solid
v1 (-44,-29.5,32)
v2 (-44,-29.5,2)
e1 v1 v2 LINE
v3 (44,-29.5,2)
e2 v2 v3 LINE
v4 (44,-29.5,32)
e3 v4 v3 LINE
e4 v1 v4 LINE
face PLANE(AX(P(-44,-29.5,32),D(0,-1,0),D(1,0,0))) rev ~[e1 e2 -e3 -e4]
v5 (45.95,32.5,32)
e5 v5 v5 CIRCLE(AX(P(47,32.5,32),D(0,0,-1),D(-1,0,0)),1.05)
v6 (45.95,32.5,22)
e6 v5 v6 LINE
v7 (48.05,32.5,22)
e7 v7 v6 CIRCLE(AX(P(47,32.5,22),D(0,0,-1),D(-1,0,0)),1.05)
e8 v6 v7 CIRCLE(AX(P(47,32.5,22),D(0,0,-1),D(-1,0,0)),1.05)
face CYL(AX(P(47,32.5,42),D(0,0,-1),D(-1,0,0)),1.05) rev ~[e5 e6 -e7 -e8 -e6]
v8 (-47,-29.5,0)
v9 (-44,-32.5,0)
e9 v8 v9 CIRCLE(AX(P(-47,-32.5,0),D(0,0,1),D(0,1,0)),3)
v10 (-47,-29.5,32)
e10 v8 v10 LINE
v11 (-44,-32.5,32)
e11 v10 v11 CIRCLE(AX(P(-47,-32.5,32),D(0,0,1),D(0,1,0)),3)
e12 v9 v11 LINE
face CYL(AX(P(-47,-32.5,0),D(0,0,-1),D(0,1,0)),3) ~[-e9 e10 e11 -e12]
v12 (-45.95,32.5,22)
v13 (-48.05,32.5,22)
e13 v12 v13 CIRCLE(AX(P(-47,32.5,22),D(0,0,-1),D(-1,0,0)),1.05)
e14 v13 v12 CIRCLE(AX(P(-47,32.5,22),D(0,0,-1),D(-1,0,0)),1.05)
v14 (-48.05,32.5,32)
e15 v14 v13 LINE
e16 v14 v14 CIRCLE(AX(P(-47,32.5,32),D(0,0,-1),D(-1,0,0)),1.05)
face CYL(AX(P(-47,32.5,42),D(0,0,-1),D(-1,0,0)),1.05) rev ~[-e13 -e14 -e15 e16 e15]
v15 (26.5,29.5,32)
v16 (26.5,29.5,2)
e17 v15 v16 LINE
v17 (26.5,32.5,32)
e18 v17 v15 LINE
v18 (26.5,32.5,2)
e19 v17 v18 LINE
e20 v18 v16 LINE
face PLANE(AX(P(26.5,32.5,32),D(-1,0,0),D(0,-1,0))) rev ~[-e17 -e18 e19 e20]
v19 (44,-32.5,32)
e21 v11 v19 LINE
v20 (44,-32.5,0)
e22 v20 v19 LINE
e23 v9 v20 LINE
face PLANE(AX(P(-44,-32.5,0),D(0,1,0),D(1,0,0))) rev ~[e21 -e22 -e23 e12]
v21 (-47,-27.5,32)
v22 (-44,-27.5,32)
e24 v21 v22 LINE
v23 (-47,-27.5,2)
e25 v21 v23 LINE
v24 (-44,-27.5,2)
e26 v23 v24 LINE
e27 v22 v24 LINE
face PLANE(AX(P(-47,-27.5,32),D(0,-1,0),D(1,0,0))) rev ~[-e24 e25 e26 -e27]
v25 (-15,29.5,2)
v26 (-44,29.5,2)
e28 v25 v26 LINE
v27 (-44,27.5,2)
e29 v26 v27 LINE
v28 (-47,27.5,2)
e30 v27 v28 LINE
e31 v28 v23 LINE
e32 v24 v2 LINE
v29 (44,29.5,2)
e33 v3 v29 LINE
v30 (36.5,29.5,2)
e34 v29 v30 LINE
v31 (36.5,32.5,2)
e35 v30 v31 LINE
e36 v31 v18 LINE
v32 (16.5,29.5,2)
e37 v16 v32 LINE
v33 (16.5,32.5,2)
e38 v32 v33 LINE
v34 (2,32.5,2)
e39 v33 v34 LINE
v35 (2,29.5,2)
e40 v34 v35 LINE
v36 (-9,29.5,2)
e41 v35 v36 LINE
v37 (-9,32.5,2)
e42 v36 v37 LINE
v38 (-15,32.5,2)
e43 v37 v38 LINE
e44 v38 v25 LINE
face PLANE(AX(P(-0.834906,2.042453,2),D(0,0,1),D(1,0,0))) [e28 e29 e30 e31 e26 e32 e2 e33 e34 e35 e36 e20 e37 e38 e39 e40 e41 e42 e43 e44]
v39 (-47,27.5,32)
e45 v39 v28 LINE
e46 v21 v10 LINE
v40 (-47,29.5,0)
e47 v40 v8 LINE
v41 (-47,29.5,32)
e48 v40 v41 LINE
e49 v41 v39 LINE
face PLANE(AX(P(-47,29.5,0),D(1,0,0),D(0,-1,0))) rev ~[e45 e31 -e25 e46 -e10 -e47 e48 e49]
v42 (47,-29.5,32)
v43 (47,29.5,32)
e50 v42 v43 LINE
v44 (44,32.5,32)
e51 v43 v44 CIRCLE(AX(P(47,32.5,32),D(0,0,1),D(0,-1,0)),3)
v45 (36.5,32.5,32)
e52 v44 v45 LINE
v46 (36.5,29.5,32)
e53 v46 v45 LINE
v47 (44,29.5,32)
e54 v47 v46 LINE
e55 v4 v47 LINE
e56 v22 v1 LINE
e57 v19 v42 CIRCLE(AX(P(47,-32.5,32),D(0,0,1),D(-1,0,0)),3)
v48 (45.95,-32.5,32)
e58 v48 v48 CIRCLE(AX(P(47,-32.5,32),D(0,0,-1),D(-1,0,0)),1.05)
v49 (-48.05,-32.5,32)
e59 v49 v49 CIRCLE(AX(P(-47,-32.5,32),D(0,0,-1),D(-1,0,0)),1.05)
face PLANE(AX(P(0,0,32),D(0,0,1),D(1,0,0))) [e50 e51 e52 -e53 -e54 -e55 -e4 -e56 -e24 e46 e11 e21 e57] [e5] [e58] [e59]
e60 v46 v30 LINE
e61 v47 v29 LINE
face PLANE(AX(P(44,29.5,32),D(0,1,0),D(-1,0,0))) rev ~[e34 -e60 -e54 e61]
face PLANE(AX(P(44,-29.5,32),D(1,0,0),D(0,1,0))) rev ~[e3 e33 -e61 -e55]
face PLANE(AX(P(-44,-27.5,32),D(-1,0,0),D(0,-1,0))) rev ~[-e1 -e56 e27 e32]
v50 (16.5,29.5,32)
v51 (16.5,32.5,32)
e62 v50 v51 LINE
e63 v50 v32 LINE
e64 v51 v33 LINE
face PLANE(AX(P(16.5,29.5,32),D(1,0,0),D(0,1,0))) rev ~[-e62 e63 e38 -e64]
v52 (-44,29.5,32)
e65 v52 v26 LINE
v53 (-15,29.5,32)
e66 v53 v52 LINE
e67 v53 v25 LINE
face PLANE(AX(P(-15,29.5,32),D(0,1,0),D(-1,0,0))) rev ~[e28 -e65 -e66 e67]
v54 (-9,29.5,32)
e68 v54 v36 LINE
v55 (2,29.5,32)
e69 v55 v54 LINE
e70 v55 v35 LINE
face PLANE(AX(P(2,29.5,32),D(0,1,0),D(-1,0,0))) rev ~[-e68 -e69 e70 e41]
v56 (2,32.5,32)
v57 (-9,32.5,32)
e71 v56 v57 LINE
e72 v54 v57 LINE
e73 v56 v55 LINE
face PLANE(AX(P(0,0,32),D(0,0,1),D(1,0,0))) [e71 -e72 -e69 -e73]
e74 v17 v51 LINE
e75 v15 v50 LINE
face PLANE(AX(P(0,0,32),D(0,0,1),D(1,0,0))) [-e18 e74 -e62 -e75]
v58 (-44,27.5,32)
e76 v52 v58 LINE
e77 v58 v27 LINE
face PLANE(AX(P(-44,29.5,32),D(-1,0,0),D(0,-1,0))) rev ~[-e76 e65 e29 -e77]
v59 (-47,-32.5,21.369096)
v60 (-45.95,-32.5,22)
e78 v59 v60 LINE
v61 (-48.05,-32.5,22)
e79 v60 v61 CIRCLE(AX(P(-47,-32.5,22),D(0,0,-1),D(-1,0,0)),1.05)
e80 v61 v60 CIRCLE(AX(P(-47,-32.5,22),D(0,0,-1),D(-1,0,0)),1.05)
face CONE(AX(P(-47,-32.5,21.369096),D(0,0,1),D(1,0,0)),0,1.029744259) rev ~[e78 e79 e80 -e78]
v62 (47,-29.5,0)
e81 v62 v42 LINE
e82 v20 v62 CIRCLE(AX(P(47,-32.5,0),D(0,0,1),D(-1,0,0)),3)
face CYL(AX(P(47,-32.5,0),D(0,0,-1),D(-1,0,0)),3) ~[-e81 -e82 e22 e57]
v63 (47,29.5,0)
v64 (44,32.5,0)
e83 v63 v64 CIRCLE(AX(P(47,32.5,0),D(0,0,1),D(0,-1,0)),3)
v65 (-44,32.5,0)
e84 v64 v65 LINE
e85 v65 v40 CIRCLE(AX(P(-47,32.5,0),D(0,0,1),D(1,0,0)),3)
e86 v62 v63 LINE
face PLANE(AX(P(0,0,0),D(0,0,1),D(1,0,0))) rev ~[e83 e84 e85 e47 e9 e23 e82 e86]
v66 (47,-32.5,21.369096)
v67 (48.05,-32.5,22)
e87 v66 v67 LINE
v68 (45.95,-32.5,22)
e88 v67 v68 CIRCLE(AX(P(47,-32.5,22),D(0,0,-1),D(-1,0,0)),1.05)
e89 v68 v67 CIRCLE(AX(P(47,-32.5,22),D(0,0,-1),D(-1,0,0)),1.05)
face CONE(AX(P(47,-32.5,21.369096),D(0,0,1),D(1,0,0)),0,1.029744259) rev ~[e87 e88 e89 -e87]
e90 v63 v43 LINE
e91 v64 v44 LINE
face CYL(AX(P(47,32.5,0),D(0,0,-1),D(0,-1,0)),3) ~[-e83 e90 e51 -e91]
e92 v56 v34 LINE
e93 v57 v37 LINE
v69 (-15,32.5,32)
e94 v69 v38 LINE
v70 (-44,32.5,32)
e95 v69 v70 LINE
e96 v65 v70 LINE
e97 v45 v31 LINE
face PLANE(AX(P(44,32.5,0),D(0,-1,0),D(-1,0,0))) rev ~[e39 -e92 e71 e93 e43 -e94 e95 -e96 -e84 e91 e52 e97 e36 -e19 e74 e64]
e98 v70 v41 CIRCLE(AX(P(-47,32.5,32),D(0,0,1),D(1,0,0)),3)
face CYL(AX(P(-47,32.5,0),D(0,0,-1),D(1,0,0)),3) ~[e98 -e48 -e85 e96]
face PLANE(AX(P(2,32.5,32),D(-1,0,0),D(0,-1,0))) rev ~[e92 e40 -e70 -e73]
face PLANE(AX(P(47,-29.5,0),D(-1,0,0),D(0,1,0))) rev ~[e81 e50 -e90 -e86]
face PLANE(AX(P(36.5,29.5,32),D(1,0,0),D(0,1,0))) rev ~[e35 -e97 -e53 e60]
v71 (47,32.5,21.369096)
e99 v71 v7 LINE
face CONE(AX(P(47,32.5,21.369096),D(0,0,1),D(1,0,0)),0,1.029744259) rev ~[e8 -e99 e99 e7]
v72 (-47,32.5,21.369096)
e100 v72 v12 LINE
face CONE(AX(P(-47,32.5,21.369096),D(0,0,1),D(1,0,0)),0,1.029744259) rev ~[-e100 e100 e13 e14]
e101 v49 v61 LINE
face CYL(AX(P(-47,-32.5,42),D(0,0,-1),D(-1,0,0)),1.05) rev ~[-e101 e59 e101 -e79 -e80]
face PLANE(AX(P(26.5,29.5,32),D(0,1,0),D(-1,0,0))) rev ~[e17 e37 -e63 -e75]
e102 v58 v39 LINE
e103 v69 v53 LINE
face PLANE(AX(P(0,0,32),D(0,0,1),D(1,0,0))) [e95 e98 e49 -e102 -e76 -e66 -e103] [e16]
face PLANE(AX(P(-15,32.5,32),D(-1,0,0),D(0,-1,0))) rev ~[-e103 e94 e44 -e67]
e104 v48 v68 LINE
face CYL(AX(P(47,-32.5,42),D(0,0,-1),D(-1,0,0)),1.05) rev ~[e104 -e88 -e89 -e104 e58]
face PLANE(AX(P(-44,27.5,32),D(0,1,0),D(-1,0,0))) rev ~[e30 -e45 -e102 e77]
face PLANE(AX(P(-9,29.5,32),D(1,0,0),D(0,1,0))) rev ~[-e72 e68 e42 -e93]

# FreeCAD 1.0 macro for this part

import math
import FreeCAD as App
import Part
import Sketcher

V = App.Vector
Q = App.Units.Quantity


def add_polygon(sketch, points):
    """Adds a closed chain of lines whose ends are joined by coincident constraints."""
    first, n = sketch.GeometryCount, len(points)
    for a, b in zip(points, points[1:] + points[:1]):
        sketch.addGeometry(Part.LineSegment(App.Vector(*a, 0), App.Vector(*b, 0)), False)
    for i in range(n):
        sketch.addConstraint(Sketcher.Constraint("Coincident", first + i, 2, first + (i + 1) % n, 1))

doc = App.newDocument("Part")
body = doc.addObject("PartDesign::Body", "Body")

# Sketch on XY plane
sketch1 = doc.addObject("Sketcher::SketchObject", "Sketch")
body.addObject(sketch1)
sketch1.AttachmentSupport = (doc.XY_Plane, [""])
sketch1.MapMode = "FlatFace"
sketch1.addGeometry([
    Part.LineSegment(V(-44, -32.5, 0), V(44, -32.5, 0)),  # 0
    Part.ArcOfCircle(Part.Circle(V(47, -32.5, 0), V(0, 0, 1), 3), math.radians(180), math.radians(450)),  # 1
    Part.LineSegment(V(47, -29.5, 0), V(47, 29.5, 0)),  # 2
    Part.ArcOfCircle(Part.Circle(V(47, 32.5, 0), V(0, 0, 1), 3), math.radians(-90), math.radians(180)),  # 3
    Part.LineSegment(V(44, 32.5, 0), V(-44, 32.5, 0)),  # 4
    Part.ArcOfCircle(Part.Circle(V(-47, 32.5, 0), V(0, 0, 1), 3), math.radians(0), math.radians(270)),  # 5
    Part.LineSegment(V(-47, 29.5, 0), V(-47, -29.5, 0)),  # 6
    Part.ArcOfCircle(Part.Circle(V(-47, -32.5, 0), V(0, 0, 1), 3), math.radians(90), math.radians(360)),  # 7
], False)
sketch1.addConstraint([
    Sketcher.Constraint("Coincident", 0, 2, 1, 1),
    Sketcher.Constraint("Coincident", 1, 2, 2, 1),
    Sketcher.Constraint("Coincident", 2, 2, 3, 1),
    Sketcher.Constraint("Coincident", 3, 2, 4, 1),
    Sketcher.Constraint("Coincident", 4, 2, 5, 1),
    Sketcher.Constraint("Coincident", 5, 2, 6, 1),
    Sketcher.Constraint("Coincident", 6, 2, 7, 1),
    Sketcher.Constraint("Coincident", 7, 2, 0, 1),
    Sketcher.Constraint("Horizontal", 0),
    Sketcher.Constraint("Vertical", 2),
    Sketcher.Constraint("Horizontal", 4),
    Sketcher.Constraint("Vertical", 6),
    Sketcher.Constraint("Equal", 1, 3),
    Sketcher.Constraint("Equal", 3, 5),
    Sketcher.Constraint("Equal", 5, 7),
    Sketcher.Constraint("Symmetric", 1, 3, 5, 3, -1, 1),
    Sketcher.Constraint("Symmetric", 3, 3, 7, 3, -1, 1),
    Sketcher.Constraint("Symmetric", 3, 3, 5, 3, -2),
    Sketcher.Constraint("Horizontal", 7, 3, 0, 2),
    Sketcher.Constraint("Horizontal", 5, 3, 3, 2),
    Sketcher.Constraint("Vertical", 3, 3, 1, 2),
    Sketcher.Constraint("Vertical", 7, 3, 5, 2),
    Sketcher.Constraint("Radius", 1, Q("3 mm")),
    Sketcher.Constraint("DistanceX", 0, 1, 0, 2, Q("88 mm")),
    Sketcher.Constraint("DistanceY", 2, 1, 2, 2, Q("59 mm")),
])
pad1 = doc.addObject("PartDesign::Pad", "Pad")
body.addObject(pad1)
pad1.Profile = sketch1
pad1.Length = 32

# Sketch on XY plane
sketch2 = doc.addObject("Sketcher::SketchObject", "Sketch001")
body.addObject(sketch2)
sketch2.AttachmentSupport = (doc.XY_Plane, [""])
sketch2.MapMode = "FlatFace"
sketch2.AttachmentOffset = App.Placement(V(0, 0, 32), App.Rotation())
add_polygon(sketch2, [(44, -29.5), (44, 29.5), (36.5, 29.5), (36.5, 32.5), (26.5, 32.5), (26.5, 29.5), (16.5, 29.5), (16.5, 32.5), (2, 32.5), (2, 29.5), (-9, 29.5), (-9, 32.5), (-15, 32.5), (-15, 29.5), (-44, 29.5), (-44, 27.5), (-47, 27.5), (-47, -27.5), (-44, -27.5), (-44, -29.5)])  # lines 0-19
sketch2.addConstraint([
    Sketcher.Constraint("Vertical", 0),
    Sketcher.Constraint("Horizontal", 1),
    Sketcher.Constraint("Vertical", 2),
    Sketcher.Constraint("Horizontal", 3),
    Sketcher.Constraint("Vertical", 4),
    Sketcher.Constraint("Horizontal", 5),
    Sketcher.Constraint("Vertical", 6),
    Sketcher.Constraint("Horizontal", 7),
    Sketcher.Constraint("Vertical", 8),
    Sketcher.Constraint("Horizontal", 9),
    Sketcher.Constraint("Vertical", 10),
    Sketcher.Constraint("Horizontal", 11),
    Sketcher.Constraint("Vertical", 12),
    Sketcher.Constraint("Horizontal", 13),
    Sketcher.Constraint("Vertical", 14),
    Sketcher.Constraint("Horizontal", 15),
    Sketcher.Constraint("Vertical", 16),
    Sketcher.Constraint("Horizontal", 17),
    Sketcher.Constraint("Vertical", 18),
    Sketcher.Constraint("Horizontal", 19),
    Sketcher.Constraint("Symmetric", 0, 2, 18, 2, -1, 1),
    Sketcher.Constraint("Symmetric", 13, 2, 19, 2, -1, 1),
    Sketcher.Constraint("Horizontal", 1, 2, 4, 2),
    Sketcher.Constraint("Horizontal", 3, 2, 6, 2),
    Sketcher.Constraint("Horizontal", 5, 2, 8, 2),
    Sketcher.Constraint("Horizontal", 7, 2, 10, 2),
    Sketcher.Constraint("Equal", 3, 5),
    Sketcher.Constraint("Equal", 17, 2),
    Sketcher.Constraint("Equal", 14, 18),
    Sketcher.Constraint("DistanceX", 3, 2, 3, 1, Q("10 mm")),
    Sketcher.Constraint("DistanceX", 9, 2, 9, 1, Q("11 mm")),
    Sketcher.Constraint("DistanceX", 11, 2, 11, 1, Q("6 mm")),
    Sketcher.Constraint("DistanceX", 13, 2, 13, 1, Q("29 mm")),
    Sketcher.Constraint("DistanceX", 15, 2, 15, 1, Q("3 mm")),
    Sketcher.Constraint("DistanceX", 19, 1, 19, 2, Q("88 mm")),
    Sketcher.Constraint("DistanceY", 0, 1, 0, 2, Q("59 mm")),
    Sketcher.Constraint("DistanceY", 14, 2, 14, 1, Q("2 mm")),
    Sketcher.Constraint("DistanceX", 1, 2, 1, 1, Q("7.5 mm")),
])
pocket1 = doc.addObject("PartDesign::Pocket", "Pocket")
body.addObject(pocket1)
pocket1.Profile = sketch2
pocket1.Length = 30

# Sketch on XY plane
sketch3 = doc.addObject("Sketcher::SketchObject", "Sketch002")
body.addObject(sketch3)
sketch3.AttachmentSupport = (doc.XY_Plane, [""])
sketch3.MapMode = "FlatFace"
sketch3.AttachmentOffset = App.Placement(V(0, 0, 32), App.Rotation())
sketch3.addGeometry([
    Part.Circle(V(-47, 32.5, 0), V(0, 0, 1), 1.1),
    Part.Circle(V(47, 32.5, 0), V(0, 0, 1), 1.1),
    Part.Circle(V(47, -32.5, 0), V(0, 0, 1), 1.1),
    Part.Circle(V(-47, -32.5, 0), V(0, 0, 1), 1.1),
], False)
sketch3.addConstraint([
    Sketcher.Constraint("Equal", 0, 1),
    Sketcher.Constraint("Equal", 1, 2),
    Sketcher.Constraint("Equal", 2, 3),
    Sketcher.Constraint("Symmetric", 0, 3, 2, 3, -1, 1),
    Sketcher.Constraint("Symmetric", 1, 3, 3, 3, -1, 1),
    Sketcher.Constraint("Symmetric", 0, 3, 1, 3, -2),
    Sketcher.Constraint("Diameter", 0, Q("2.1 mm")),
    Sketcher.Constraint("DistanceX", 0, 3, -1, 1, Q("47 mm")),
    Sketcher.Constraint("DistanceY", 2, 3, 1, 3, Q("65 mm")),
])
doc.recompute()
hole = doc.addObject("PartDesign::Hole", "Hole")
body.addObject(hole)
hole.Profile = sketch3
hole.ThreadType = "None"
hole.Diameter = 2.1
hole.DepthType = "Dimension"
hole.Depth = 10
hole.DrillPoint = "Angled"
hole.DrillPointAngle = 118

doc.recompute()
